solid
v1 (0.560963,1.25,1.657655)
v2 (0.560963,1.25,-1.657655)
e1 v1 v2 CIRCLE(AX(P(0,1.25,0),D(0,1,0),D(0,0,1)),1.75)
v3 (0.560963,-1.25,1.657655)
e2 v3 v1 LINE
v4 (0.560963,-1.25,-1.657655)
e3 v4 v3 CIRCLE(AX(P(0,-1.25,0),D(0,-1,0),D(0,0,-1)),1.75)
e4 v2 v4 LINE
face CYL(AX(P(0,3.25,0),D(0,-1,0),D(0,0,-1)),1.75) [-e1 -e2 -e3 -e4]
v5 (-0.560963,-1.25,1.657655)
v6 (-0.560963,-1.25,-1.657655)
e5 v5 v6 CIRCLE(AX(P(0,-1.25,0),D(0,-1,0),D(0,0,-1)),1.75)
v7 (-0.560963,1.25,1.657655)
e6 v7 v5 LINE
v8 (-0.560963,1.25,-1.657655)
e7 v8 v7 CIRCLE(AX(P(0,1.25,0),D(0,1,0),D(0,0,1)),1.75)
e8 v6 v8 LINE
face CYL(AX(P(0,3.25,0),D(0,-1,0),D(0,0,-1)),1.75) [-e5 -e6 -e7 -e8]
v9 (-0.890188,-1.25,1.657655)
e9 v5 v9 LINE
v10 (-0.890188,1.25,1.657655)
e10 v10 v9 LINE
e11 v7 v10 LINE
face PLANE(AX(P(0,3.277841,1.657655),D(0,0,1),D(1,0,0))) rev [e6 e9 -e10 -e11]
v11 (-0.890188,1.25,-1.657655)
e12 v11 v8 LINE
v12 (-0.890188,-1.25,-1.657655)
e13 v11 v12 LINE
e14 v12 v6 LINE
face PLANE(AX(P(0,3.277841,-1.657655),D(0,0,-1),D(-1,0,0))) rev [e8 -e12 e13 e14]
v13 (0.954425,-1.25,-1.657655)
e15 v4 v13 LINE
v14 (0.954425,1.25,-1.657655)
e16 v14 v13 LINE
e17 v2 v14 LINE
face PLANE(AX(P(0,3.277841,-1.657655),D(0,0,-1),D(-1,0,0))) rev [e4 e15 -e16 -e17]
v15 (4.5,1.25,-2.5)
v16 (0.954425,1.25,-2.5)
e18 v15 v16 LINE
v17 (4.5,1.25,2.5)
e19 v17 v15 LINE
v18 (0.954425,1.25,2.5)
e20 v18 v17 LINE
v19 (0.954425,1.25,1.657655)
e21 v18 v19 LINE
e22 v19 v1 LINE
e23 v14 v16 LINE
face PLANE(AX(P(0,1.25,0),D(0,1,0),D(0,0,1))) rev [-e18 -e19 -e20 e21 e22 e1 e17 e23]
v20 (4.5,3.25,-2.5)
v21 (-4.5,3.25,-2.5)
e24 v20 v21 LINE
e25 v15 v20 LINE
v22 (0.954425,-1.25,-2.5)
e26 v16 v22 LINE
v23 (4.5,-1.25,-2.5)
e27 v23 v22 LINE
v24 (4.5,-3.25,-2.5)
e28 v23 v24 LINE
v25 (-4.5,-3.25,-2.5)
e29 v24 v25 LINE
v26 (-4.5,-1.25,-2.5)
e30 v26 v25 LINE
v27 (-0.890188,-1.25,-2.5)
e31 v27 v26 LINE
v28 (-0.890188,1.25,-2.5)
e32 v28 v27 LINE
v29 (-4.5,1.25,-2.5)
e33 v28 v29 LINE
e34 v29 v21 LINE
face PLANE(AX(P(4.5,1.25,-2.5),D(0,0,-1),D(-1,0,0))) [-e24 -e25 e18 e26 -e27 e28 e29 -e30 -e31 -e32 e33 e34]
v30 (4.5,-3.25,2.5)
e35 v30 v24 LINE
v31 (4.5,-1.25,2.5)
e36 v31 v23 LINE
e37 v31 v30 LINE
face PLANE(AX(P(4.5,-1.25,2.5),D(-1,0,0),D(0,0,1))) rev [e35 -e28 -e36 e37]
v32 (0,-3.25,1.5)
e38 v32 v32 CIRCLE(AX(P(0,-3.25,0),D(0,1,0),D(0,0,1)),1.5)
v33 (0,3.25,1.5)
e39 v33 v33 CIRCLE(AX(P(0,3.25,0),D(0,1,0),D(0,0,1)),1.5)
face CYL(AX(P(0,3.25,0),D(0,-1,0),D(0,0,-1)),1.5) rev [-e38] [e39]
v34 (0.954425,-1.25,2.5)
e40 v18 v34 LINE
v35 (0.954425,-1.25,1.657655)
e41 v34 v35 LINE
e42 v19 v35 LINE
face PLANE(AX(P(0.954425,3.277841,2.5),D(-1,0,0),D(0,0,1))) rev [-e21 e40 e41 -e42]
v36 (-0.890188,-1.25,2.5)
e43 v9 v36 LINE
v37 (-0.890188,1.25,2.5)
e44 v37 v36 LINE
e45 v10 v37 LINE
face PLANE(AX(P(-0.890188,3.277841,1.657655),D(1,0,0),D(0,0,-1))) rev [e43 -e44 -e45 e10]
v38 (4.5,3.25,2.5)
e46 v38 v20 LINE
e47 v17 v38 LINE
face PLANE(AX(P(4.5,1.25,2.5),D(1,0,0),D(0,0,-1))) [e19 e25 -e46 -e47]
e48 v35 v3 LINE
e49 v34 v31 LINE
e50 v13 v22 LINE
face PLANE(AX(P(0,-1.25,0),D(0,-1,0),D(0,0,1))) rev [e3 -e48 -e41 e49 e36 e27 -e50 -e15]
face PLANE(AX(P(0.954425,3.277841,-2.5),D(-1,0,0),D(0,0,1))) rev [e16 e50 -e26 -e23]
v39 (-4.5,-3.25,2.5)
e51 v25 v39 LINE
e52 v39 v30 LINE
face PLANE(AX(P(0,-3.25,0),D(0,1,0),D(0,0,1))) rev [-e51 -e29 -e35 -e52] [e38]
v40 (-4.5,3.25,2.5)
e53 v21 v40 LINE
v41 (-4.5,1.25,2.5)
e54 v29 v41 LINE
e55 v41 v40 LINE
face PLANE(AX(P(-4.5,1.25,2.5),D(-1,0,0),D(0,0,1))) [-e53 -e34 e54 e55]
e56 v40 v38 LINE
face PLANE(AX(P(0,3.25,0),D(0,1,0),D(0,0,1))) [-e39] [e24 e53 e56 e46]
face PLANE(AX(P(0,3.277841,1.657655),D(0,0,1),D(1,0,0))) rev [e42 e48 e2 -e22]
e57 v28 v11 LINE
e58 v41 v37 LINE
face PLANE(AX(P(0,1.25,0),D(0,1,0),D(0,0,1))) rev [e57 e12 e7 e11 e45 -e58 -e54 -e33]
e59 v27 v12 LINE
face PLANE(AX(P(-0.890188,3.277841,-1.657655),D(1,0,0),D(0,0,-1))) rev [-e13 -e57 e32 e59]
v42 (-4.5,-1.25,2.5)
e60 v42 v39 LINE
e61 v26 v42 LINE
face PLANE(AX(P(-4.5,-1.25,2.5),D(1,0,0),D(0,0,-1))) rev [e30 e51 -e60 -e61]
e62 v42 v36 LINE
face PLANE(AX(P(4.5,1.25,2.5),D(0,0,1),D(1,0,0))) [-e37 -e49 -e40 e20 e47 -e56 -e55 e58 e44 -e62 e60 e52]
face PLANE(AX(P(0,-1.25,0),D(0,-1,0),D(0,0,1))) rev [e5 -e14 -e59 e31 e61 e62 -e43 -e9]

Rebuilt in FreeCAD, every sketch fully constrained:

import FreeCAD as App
import Part
import Sketcher
from FreeCAD import Vector
Q = App.Units.Quantity


def add_polygon(sketch, points):
    """Adds a closed chain of lines whose ends are joined by coincident constraints."""
    first, n = sketch.GeometryCount, len(points)
    for a, b in zip(points, points[1:] + points[:1]):
        sketch.addGeometry(Part.LineSegment(App.Vector(*a, 0), App.Vector(*b, 0)), False)
    for i in range(n):
        sketch.addConstraint(Sketcher.Constraint("Coincident", first + i, 2, first + (i + 1) % n, 1))

doc = App.newDocument("Part")
body = doc.addObject("PartDesign::Body", "Body")

# Sketch on XZ plane
sketch1 = body.newObject("Sketcher::SketchObject", "Sketch")
sketch1.AttachmentSupport = (doc.getObject("XZ_Plane"), [""])
sketch1.MapMode = "FlatFace"
sketch1.addGeometry(Part.Circle(Vector(0, 0, 0), Vector(0, 0, 1), 1.75), False)
sketch1.addGeometry(Part.Circle(Vector(0, 0, 0), Vector(0, 0, 1), 1.5), False)
sketch1.addConstraint(Sketcher.Constraint("Coincident", 0, 3, -1, 1))
sketch1.addConstraint(Sketcher.Constraint("Coincident", 1, 3, -1, 1))
sketch1.addConstraint(Sketcher.Constraint("Diameter", 1, Q("3 mm")))
sketch1.addConstraint(Sketcher.Constraint("Diameter", 0, Q("3.5 mm")))
pad1 = body.newObject("PartDesign::Pad", "Pad")
pad1.Profile = sketch1
pad1.Length = 6.5
pad1.Midplane = True

# Sketch on XZ plane
sketch2 = body.newObject("Sketcher::SketchObject", "Sketch001")
sketch2.AttachmentSupport = (doc.getObject("XZ_Plane"), [""])
sketch2.MapMode = "FlatFace"
sketch2.AttachmentOffset = App.Placement(Vector(0, 0, -3.25), App.Rotation())
add_polygon(sketch2, [(-4.5, -2.5), (-4.5, 2.5), (4.5, 2.5), (4.5, -2.5)])  # lines 0-3
sketch2.addGeometry(Part.Circle(Vector(0, 0, 0), Vector(0, 0, 1), 1.5), False)  # 4
sketch2.addConstraint(Sketcher.Constraint("Vertical", 0))
sketch2.addConstraint(Sketcher.Constraint("Horizontal", 1))
sketch2.addConstraint(Sketcher.Constraint("Vertical", 2))
sketch2.addConstraint(Sketcher.Constraint("Horizontal", 3))
sketch2.addConstraint(Sketcher.Constraint("Coincident", 4, 3, -1, 1))
sketch2.addConstraint(Sketcher.Constraint("Symmetric", 0, 2, 2, 2, -1, 1))
sketch2.addConstraint(Sketcher.Constraint("Diameter", 4, Q("3 mm")))
sketch2.addConstraint(Sketcher.Constraint("DistanceX", 1, 1, 1, 2, Q("9 mm")))
sketch2.addConstraint(Sketcher.Constraint("DistanceY", 0, 1, 0, 2, Q("5 mm")))
pad2 = body.newObject("PartDesign::Pad", "Pad001")
pad2.Profile = sketch2
pad2.Length = 2
doc.recompute()

mirrored = body.newObject("PartDesign::Mirrored", "Mirrored")
mirrored.Originals = [pad2]
mirrored.MirrorPlane = (doc.getObject("XZ_Plane"), [""])
body.Tip = mirrored

# Sketch on XZ plane
sketch3 = body.newObject("Sketcher::SketchObject", "Sketch002")
sketch3.AttachmentSupport = (doc.getObject("XZ_Plane"), [""])
sketch3.MapMode = "FlatFace"
sketch3.AttachmentOffset = App.Placement(Vector(0, 0, 1.25), App.Rotation())
add_polygon(sketch3, [(-0.890188, -1.657655), (0.954425, -1.657655), (0.954425, -2.5), (-0.890188, -2.5)])  # lines 0-3
add_polygon(sketch3, [(0.954425, 1.657655), (-0.890188, 1.657655), (-0.890188, 2.5), (0.954425, 2.5)])  # lines 4-7
sketch3.addConstraint(Sketcher.Constraint("Horizontal", 0))
sketch3.addConstraint(Sketcher.Constraint("Vertical", 1))
sketch3.addConstraint(Sketcher.Constraint("Horizontal", 2))
sketch3.addConstraint(Sketcher.Constraint("Vertical", 3))
sketch3.addConstraint(Sketcher.Constraint("Horizontal", 4))
sketch3.addConstraint(Sketcher.Constraint("Vertical", 5))
sketch3.addConstraint(Sketcher.Constraint("Horizontal", 6))
sketch3.addConstraint(Sketcher.Constraint("Vertical", 7))
sketch3.addConstraint(Sketcher.Constraint("Symmetric", 3, 2, 4, 2, -1))
sketch3.addConstraint(Sketcher.Constraint("Symmetric", 1, 2, 6, 2, -1))
sketch3.addConstraint(Sketcher.Constraint("DistanceY", 2, 2, 5, 2, Q("5 mm")))
sketch3.addConstraint(Sketcher.Constraint("DistanceX", 0, 1, 0, 2, Q("1.844613 mm")))
sketch3.addConstraint(Sketcher.Constraint("DistanceY", 1, 2, 1, 1, Q("0.842345 mm")))
sketch3.addConstraint(Sketcher.Constraint("DistanceX", -1, 1, 0, 2, Q("0.954425 mm")))
pad3 = body.newObject("PartDesign::Pad", "Pad002")
pad3.Profile = sketch3
pad3.Length = 2.5
pad3.Reversed = True

doc.recompute()
